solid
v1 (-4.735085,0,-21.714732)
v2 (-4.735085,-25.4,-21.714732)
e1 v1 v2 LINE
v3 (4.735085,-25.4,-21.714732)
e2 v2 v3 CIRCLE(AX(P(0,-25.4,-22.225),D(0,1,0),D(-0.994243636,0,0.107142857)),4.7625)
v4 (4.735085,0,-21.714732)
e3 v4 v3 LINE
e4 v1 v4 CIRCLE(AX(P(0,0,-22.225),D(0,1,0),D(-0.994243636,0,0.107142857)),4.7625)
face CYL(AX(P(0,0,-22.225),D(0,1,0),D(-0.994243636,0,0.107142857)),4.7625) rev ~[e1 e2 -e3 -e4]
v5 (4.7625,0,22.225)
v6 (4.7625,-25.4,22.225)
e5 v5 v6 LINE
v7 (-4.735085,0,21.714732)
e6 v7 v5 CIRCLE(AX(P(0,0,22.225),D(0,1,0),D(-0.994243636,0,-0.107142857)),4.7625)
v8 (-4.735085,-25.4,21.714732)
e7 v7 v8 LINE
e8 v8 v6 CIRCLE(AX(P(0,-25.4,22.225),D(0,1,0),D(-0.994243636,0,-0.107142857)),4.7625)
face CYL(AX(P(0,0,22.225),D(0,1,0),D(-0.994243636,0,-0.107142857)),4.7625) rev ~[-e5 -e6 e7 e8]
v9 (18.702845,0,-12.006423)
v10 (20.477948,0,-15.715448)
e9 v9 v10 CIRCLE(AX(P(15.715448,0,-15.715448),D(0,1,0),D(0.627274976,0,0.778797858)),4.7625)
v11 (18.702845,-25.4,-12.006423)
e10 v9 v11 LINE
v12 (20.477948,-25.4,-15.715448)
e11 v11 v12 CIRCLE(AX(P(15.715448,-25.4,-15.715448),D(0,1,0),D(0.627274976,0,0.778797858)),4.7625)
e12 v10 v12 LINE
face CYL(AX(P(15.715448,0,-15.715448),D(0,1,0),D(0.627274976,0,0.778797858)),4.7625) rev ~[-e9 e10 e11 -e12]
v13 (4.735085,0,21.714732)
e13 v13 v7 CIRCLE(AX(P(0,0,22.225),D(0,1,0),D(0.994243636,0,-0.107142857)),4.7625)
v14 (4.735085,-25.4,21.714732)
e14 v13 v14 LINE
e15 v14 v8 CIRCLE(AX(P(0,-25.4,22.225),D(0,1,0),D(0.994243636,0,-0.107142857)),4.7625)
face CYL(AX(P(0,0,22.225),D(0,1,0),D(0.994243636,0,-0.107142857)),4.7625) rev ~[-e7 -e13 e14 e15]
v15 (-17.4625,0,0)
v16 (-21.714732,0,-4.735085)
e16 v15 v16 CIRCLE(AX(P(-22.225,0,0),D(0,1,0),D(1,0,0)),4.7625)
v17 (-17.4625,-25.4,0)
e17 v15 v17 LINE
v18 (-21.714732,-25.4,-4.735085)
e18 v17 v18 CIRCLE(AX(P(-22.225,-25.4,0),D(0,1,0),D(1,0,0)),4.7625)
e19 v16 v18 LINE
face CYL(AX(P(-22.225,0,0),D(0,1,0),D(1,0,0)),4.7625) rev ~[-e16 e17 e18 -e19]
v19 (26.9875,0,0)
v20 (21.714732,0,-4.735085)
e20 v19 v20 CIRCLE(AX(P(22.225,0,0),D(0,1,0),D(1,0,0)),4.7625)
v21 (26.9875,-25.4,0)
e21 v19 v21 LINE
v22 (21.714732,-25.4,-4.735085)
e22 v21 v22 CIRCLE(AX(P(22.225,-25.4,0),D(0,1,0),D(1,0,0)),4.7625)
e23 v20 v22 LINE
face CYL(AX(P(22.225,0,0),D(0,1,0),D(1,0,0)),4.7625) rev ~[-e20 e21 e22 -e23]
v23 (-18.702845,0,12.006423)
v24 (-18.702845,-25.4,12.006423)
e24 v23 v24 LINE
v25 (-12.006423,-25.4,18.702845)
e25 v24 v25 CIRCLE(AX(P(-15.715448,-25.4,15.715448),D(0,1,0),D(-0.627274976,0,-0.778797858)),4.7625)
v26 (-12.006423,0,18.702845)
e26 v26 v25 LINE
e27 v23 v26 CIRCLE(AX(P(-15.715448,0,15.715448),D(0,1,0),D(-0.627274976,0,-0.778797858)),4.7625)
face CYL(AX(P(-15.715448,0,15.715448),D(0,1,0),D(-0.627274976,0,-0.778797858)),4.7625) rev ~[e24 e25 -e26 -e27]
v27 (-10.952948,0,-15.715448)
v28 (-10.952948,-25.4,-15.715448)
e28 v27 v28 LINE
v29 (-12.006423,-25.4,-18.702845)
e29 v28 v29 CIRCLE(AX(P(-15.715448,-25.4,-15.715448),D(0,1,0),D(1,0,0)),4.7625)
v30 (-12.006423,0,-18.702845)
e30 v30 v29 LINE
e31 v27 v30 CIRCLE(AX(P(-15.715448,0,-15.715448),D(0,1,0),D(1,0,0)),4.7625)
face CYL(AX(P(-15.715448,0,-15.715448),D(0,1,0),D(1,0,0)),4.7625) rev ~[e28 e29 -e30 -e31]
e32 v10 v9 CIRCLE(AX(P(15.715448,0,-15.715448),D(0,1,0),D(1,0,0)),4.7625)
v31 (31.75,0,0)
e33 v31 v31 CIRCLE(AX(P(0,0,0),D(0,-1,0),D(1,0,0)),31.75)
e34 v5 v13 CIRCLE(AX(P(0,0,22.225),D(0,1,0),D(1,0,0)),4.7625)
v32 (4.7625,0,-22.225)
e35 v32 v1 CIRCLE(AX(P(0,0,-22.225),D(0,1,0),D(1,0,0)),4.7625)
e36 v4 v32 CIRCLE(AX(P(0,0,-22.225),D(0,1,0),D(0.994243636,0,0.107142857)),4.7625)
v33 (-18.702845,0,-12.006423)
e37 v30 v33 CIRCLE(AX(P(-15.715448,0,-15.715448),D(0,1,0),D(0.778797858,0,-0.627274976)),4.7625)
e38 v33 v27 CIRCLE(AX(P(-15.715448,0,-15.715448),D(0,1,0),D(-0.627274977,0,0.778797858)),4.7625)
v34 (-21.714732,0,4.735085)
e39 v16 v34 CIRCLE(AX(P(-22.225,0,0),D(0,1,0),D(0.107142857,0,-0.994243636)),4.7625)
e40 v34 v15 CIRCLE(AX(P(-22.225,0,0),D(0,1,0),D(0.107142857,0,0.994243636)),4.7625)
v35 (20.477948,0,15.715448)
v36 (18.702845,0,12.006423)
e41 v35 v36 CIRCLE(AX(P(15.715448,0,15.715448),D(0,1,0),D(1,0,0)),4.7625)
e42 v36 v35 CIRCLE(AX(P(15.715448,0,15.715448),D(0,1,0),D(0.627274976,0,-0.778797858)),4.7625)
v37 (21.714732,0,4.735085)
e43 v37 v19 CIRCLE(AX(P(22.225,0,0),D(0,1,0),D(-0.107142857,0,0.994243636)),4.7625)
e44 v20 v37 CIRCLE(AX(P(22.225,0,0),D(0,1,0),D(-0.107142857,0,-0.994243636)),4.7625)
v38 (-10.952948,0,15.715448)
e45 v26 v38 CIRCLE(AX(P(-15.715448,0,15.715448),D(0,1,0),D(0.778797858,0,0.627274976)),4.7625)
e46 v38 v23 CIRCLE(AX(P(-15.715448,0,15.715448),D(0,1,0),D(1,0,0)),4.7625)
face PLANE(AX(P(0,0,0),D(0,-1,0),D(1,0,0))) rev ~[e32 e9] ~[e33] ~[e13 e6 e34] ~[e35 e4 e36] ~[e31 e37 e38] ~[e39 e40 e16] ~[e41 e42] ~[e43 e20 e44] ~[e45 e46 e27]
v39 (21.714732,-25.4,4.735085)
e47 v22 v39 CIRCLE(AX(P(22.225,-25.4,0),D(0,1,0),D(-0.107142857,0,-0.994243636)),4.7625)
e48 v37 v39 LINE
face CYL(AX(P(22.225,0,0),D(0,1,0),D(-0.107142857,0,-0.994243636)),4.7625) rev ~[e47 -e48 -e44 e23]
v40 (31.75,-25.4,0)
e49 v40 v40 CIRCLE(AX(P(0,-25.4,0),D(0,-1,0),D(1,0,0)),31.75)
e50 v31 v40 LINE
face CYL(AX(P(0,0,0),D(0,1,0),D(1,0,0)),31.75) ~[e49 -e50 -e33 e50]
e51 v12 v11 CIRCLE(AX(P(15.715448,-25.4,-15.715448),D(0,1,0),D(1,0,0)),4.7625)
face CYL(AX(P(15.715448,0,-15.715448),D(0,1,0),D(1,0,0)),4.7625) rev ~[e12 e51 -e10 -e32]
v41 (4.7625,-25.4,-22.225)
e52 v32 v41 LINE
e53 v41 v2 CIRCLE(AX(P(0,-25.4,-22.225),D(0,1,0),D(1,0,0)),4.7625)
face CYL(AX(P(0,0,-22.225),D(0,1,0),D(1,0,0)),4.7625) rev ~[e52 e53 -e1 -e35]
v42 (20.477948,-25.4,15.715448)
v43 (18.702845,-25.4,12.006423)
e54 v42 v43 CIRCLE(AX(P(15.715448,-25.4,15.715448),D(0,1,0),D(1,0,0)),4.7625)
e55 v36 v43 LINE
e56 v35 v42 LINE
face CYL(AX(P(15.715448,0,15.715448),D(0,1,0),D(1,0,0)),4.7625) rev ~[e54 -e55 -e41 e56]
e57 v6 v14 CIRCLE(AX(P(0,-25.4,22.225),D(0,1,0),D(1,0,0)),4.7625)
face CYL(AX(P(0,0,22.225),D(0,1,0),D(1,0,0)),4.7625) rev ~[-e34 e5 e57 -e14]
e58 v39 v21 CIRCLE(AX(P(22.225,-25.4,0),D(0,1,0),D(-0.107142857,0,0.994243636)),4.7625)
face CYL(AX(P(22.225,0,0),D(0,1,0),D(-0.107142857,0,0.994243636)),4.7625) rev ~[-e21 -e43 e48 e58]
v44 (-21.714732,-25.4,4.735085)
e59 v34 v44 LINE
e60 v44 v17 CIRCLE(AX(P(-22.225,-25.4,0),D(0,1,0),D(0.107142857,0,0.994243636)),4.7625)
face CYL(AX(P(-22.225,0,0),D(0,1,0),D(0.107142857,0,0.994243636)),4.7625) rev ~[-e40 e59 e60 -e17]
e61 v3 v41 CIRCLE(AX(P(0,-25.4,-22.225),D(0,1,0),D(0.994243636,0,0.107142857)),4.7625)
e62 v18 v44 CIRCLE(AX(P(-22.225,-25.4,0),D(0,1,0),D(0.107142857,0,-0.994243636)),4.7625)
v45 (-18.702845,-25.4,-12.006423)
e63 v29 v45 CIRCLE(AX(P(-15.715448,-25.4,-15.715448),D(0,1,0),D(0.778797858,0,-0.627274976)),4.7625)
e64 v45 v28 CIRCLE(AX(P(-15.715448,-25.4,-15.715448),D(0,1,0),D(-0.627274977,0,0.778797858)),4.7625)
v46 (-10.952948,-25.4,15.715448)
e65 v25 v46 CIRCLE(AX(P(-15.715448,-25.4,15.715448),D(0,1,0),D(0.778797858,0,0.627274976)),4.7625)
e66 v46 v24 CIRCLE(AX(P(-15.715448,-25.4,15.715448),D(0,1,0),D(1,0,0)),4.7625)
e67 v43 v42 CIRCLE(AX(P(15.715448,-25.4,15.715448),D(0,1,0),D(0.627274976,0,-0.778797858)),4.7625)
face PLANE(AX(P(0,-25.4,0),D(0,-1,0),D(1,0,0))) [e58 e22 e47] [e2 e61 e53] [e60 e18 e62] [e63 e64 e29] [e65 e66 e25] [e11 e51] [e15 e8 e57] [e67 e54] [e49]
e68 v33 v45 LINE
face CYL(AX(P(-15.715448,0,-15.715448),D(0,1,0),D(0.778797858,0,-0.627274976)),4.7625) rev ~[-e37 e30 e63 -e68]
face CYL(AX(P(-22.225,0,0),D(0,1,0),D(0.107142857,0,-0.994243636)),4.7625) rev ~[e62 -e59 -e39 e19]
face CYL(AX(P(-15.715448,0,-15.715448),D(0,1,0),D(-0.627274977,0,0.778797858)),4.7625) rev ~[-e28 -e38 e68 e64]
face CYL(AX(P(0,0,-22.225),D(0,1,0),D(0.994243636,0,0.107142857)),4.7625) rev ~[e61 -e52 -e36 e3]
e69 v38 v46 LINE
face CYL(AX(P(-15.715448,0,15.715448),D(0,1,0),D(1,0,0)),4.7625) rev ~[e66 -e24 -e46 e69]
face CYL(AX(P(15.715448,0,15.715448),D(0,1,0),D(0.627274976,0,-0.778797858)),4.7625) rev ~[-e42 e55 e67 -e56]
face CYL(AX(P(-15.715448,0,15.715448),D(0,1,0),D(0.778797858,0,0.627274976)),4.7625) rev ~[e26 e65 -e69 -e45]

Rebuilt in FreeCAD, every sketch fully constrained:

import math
import FreeCAD as App
import Part
import Sketcher

V = App.Vector
Q = App.Units.Quantity

doc = App.newDocument("Part")
params = doc.addObject("Spreadsheet::Sheet", "Params")
for row, (alias, value) in enumerate([
    ("sketch1_diameter", "2.5 in"),
    ("sketch1_radius", "0.1875 in"),
    ("pad1_length", "1 in"),
], start=1):
    params.set(f"A{row}", alias)
    params.set(f"B{row}", "=" + value)
    params.setAlias(f"B{row}", alias)

body = doc.addObject("PartDesign::Body", "Body")

sketch1 = body.newObject("Sketcher::SketchObject", "Sketch")
sketch1.AttachmentSupport = (doc.getObject("XZ_Plane"), [""])
sketch1.MapMode = "FlatFace"
sketch1.addGeometry([
    Part.Circle(V(0, 0, 0), V(0, 0, 1), 31.75),
    Part.ArcOfCircle(Part.Circle(V(15.715448, 15.715448, 0), V(0, 0, 1), 4.7625), math.radians(-51.15064), math.radians(0)),
    Part.ArcOfCircle(Part.Circle(V(15.715448, 15.715448, 0), V(0, 0, 1), 4.7625), math.radians(0), math.radians(308.84936)),
    Part.ArcOfCircle(Part.Circle(V(0, 22.225, 0), V(0, 0, 1), 4.7625), math.radians(-6.15064), math.radians(0)),
    Part.ArcOfCircle(Part.Circle(V(0, 22.225, 0), V(0, 0, 1), 4.7625), math.radians(-173.84936), math.radians(-6.15064)),
    Part.ArcOfCircle(Part.Circle(V(0, 22.225, 0), V(0, 0, 1), 4.7625), math.radians(0), math.radians(186.15064)),
    Part.ArcOfCircle(Part.Circle(V(-15.715448, 15.715448, 0), V(0, 0, 1), 4.7625), math.radians(38.84936), math.radians(231.15064)),
    Part.ArcOfCircle(Part.Circle(V(-15.715448, 15.715448, 0), V(0, 0, 1), 4.7625), math.radians(0), math.radians(38.84936)),
    Part.ArcOfCircle(Part.Circle(V(-15.715448, 15.715448, 0), V(0, 0, 1), 4.7625), math.radians(-128.84936), math.radians(0)),
    Part.ArcOfCircle(Part.Circle(V(-22.225, 0, 0), V(0, 0, 1), 4.7625), math.radians(83.84936), math.radians(276.15064)),
    Part.ArcOfCircle(Part.Circle(V(-22.225, 0, 0), V(0, 0, 1), 4.7625), math.radians(0), math.radians(83.84936)),
    Part.ArcOfCircle(Part.Circle(V(-22.225, 0, 0), V(0, 0, 1), 4.7625), math.radians(-83.84936), math.radians(0)),
    Part.ArcOfCircle(Part.Circle(V(-15.715448, -15.715448, 0), V(0, 0, 1), 4.7625), math.radians(128.84936), math.radians(321.15064)),
    Part.ArcOfCircle(Part.Circle(V(-15.715448, -15.715448, 0), V(0, 0, 1), 4.7625), math.radians(0), math.radians(128.84936)),
    Part.ArcOfCircle(Part.Circle(V(-15.715448, -15.715448, 0), V(0, 0, 1), 4.7625), math.radians(-38.84936), math.radians(0)),
    Part.ArcOfCircle(Part.Circle(V(0, -22.225, 0), V(0, 0, 1), 4.7625), math.radians(173.84936), math.radians(360)),
    Part.ArcOfCircle(Part.Circle(V(0, -22.225, 0), V(0, 0, 1), 4.7625), math.radians(6.15064), math.radians(173.84936)),
    Part.ArcOfCircle(Part.Circle(V(0, -22.225, 0), V(0, 0, 1), 4.7625), math.radians(0), math.radians(6.15064)),
    Part.ArcOfCircle(Part.Circle(V(15.715448, -15.715448, 0), V(0, 0, 1), 4.7625), math.radians(51.15064), math.radians(360)),
    Part.ArcOfCircle(Part.Circle(V(15.715448, -15.715448, 0), V(0, 0, 1), 4.7625), math.radians(0), math.radians(51.15064)),
    Part.ArcOfCircle(Part.Circle(V(22.225, 0, 0), V(0, 0, 1), 4.7625), math.radians(-96.15064), math.radians(0)),
    Part.ArcOfCircle(Part.Circle(V(22.225, 0, 0), V(0, 0, 1), 4.7625), math.radians(96.15064), math.radians(263.84936)),
    Part.ArcOfCircle(Part.Circle(V(22.225, 0, 0), V(0, 0, 1), 4.7625), math.radians(0), math.radians(96.15064)),
], False)
sketch1.addConstraint([
    Sketcher.Constraint("Tangent", 1, 1, 2, 2),
    Sketcher.Constraint("Coincident", 2, 1, 1, 2),
    Sketcher.Constraint("Tangent", 3, 1, 4, 2),
    Sketcher.Constraint("Tangent", 4, 1, 5, 2),
    Sketcher.Constraint("Tangent", 5, 1, 3, 2),
    Sketcher.Constraint("Tangent", 6, 1, 7, 2),
    Sketcher.Constraint("Tangent", 7, 1, 8, 2),
    Sketcher.Constraint("Tangent", 8, 1, 6, 2),
    Sketcher.Constraint("Tangent", 9, 1, 10, 2),
    Sketcher.Constraint("Tangent", 10, 1, 11, 2),
    Sketcher.Constraint("Tangent", 11, 1, 9, 2),
    Sketcher.Constraint("Tangent", 12, 1, 13, 2),
    Sketcher.Constraint("Tangent", 13, 1, 14, 2),
    Sketcher.Constraint("Tangent", 14, 1, 12, 2),
    Sketcher.Constraint("Tangent", 15, 1, 16, 2),
    Sketcher.Constraint("Tangent", 16, 1, 17, 2),
    Sketcher.Constraint("Tangent", 17, 1, 15, 2),
    Sketcher.Constraint("Tangent", 18, 1, 19, 2),
    Sketcher.Constraint("Coincident", 19, 1, 18, 2),
    Sketcher.Constraint("Tangent", 20, 1, 21, 2),
    Sketcher.Constraint("Tangent", 21, 1, 22, 2),
    Sketcher.Constraint("Tangent", 22, 1, 20, 2),
    Sketcher.Constraint("Coincident", 0, 3, -1, 1),
    Sketcher.Constraint("Equal", 2, 3),
    Sketcher.Constraint("Equal", 5, 6),
    Sketcher.Constraint("Equal", 8, 9),
    Sketcher.Constraint("Equal", 11, 12),
    Sketcher.Constraint("Equal", 14, 15),
    Sketcher.Constraint("Equal", 17, 18),
    Sketcher.Constraint("Equal", 19, 20),
    Sketcher.Constraint("Symmetric", 1, 3, 12, 3, -1, 1),
    Sketcher.Constraint("Symmetric", 3, 3, 15, 3, -1, 1),
    Sketcher.Constraint("Symmetric", 6, 3, 18, 3, -1, 1),
    Sketcher.Constraint("Symmetric", 9, 3, 20, 3, -1, 1),
    Sketcher.Constraint("Symmetric", 1, 3, 6, 3, -2),
    Sketcher.Constraint("Symmetric", 3, 1, 4, 1, -2),
    Sketcher.Constraint("Symmetric", 11, 1, 20, 1, -2),
    Sketcher.Constraint("PointOnObject", 10, 1, -1),
    Sketcher.Constraint("PointOnObject", 22, 1, -1),
    Sketcher.Constraint("Horizontal", 8, 3, 2, 1),
    Sketcher.Constraint("Horizontal", 4, 3, 5, 1),
    Sketcher.Constraint("Horizontal", 2, 1, 7, 1),
    Sketcher.Constraint("Horizontal", 1, 1, 8, 1),
    Sketcher.Constraint("Horizontal", 19, 3, 13, 1),
    Sketcher.Constraint("Horizontal", 15, 1, 16, 1),
    Sketcher.Constraint("Horizontal", 16, 3, 17, 1),
    Sketcher.Constraint("Horizontal", 12, 1, 18, 1),
    Sketcher.Constraint("Horizontal", 13, 1, 19, 1),
    Sketcher.Constraint("Horizontal", 9, 1, 21, 1),
    Sketcher.Constraint("Vertical", 9, 1, 11, 1),
    Sketcher.Constraint("Vertical", 8, 1, 12, 1),
    Sketcher.Constraint("Vertical", 6, 1, 14, 1),
    Sketcher.Constraint("Vertical", 4, 1, 15, 1),
    Sketcher.Constraint("Diameter", 0, Q("2.5 in")),
    Sketcher.Constraint("Radius", 1, Q("0.1875 in")),
    Sketcher.Constraint("DistanceY", -1, 1, 3, 3, Q("0.875 in")),
    Sketcher.Constraint("DistanceX", 9, 3, -1, 1, Q("0.875 in")),
    Sketcher.Constraint("DistanceX", -1, 1, 1, 3, 15.715448),
    Sketcher.Constraint("DistanceY", -1, 1, 1, 3, 15.715448),
    Sketcher.Constraint("DistanceX", 4, 1, 3, 1, 9.470171),
    Sketcher.Constraint("DistanceX", 6, 1, 4, 1, 7.271338),
    Sketcher.Constraint("DistanceX", 8, 1, 6, 1, 6.696422),
    Sketcher.Constraint("DistanceY", 9, 1, 8, 1, 7.271338),
])
sketch1.setExpression("Constraints[53]", "Params.sketch1_diameter")
sketch1.setExpression("Constraints[54]", "Params.sketch1_radius")
pad1 = body.newObject("PartDesign::Pad", "Pad")
pad1.Profile = sketch1
pad1.setExpression("Length", "Params.pad1_length")

doc.recompute()
